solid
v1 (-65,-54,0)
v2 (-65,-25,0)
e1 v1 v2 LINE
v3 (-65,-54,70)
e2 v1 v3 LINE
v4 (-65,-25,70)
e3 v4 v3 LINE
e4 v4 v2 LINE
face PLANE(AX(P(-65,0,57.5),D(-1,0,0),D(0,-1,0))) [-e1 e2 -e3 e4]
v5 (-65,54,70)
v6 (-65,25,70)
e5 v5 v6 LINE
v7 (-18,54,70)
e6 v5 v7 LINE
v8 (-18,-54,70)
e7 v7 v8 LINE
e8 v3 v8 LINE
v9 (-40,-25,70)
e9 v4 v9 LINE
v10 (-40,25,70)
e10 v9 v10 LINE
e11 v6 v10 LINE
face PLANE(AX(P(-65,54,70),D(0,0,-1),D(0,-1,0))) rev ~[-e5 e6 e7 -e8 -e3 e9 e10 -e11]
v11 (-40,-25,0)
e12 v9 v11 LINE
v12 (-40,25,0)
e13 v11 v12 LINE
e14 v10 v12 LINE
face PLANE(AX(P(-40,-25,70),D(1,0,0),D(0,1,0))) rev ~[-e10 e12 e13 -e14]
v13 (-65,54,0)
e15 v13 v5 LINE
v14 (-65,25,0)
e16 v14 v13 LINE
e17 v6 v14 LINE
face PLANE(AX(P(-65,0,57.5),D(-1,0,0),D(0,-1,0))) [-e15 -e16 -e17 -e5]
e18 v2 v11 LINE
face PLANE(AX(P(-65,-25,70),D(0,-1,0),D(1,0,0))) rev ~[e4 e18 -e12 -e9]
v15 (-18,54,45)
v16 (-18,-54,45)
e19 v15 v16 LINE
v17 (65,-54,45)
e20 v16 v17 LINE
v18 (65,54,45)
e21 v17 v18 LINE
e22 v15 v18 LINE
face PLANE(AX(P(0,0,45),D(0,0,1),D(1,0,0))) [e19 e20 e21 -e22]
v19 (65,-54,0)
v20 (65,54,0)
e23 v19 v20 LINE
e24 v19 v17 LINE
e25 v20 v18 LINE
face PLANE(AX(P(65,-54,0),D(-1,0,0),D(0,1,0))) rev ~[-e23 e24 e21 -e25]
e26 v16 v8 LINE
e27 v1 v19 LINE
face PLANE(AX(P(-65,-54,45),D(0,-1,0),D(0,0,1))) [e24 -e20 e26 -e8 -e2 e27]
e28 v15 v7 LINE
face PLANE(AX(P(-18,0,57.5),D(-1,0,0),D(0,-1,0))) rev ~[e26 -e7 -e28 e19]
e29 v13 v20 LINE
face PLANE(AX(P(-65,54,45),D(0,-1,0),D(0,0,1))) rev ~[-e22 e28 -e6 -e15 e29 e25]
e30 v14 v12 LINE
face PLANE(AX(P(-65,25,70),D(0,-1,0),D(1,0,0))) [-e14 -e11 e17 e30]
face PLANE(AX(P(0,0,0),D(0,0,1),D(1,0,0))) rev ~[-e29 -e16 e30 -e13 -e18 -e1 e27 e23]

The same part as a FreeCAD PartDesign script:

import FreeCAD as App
import Part
import Sketcher

V = App.Vector


def add_polygon(sketch, points):
    """Adds a closed chain of lines whose ends are joined by coincident constraints."""
    first, n = sketch.GeometryCount, len(points)
    for a, b in zip(points, points[1:] + points[:1]):
        sketch.addGeometry(Part.LineSegment(App.Vector(*a, 0), App.Vector(*b, 0)), False)
    for i in range(n):
        sketch.addConstraint(Sketcher.Constraint("Coincident", first + i, 2, first + (i + 1) % n, 1))

doc = App.newDocument("Part")
body = doc.addObject("PartDesign::Body", "Body")

sketch1 = body.newObject("Sketcher::SketchObject", "Sketch")
sketch1.AttachmentSupport = (doc.getObject("XY_Plane"), [""])
sketch1.MapMode = "FlatFace"
add_polygon(sketch1, [(-65, 54), (-65, -54), (65, -54), (65, 54)])
sketch1.addConstraint(Sketcher.Constraint("Vertical", 0))
sketch1.addConstraint(Sketcher.Constraint("Horizontal", 1))
sketch1.addConstraint(Sketcher.Constraint("Vertical", 2))
sketch1.addConstraint(Sketcher.Constraint("Horizontal", 3))
sketch1.addConstraint(Sketcher.Constraint("Symmetric", 0, 2, 2, 2, -1, 1))
sketch1.addConstraint(Sketcher.Constraint("DistanceX", 1, 1, 1, 2, 130.0))
sketch1.addConstraint(Sketcher.Constraint("DistanceY", 0, 2, 0, 1, 108.0))
pad1 = body.newObject("PartDesign::Pad", "Pad")
pad1.Profile = sketch1
pad1.Length = 45

sketch2 = body.newObject("Sketcher::SketchObject", "Sketch001")
sketch2.AttachmentSupport = (doc.getObject("YZ_Plane"), [""])
sketch2.MapMode = "FlatFace"
sketch2.AttachmentOffset = App.Placement(V(0, 0, -65), App.Rotation())
add_polygon(sketch2, [(54, 70), (54, 45), (-54, 45), (-54, 70)])
sketch2.addConstraint(Sketcher.Constraint("Vertical", 0))
sketch2.addConstraint(Sketcher.Constraint("Horizontal", 1))
sketch2.addConstraint(Sketcher.Constraint("Vertical", 2))
sketch2.addConstraint(Sketcher.Constraint("Horizontal", 3))
sketch2.addConstraint(Sketcher.Constraint("DistanceX", 1, 2, 1, 1, 108.0))
sketch2.addConstraint(Sketcher.Constraint("DistanceY", 0, 2, 0, 1, 25.0))
sketch2.addConstraint(Sketcher.Constraint("DistanceX", -1, 1, 0, 2, 54.0))
sketch2.addConstraint(Sketcher.Constraint("DistanceY", -1, 1, 0, 2, 45.0))
pad2 = body.newObject("PartDesign::Pad", "Pad001")
pad2.Profile = sketch2
pad2.Length = 47

sketch3 = body.newObject("Sketcher::SketchObject", "Sketch002")
sketch3.AttachmentSupport = (doc.getObject("XY_Plane"), [""])
sketch3.MapMode = "FlatFace"
sketch3.AttachmentOffset = App.Placement(V(0, 0, 70), App.Rotation())
add_polygon(sketch3, [(-65, 25), (-65, -25), (-40, -25), (-40, 25)])
sketch3.addConstraint(Sketcher.Constraint("Vertical", 0))
sketch3.addConstraint(Sketcher.Constraint("Horizontal", 1))
sketch3.addConstraint(Sketcher.Constraint("Vertical", 2))
sketch3.addConstraint(Sketcher.Constraint("Horizontal", 3))
sketch3.addConstraint(Sketcher.Constraint("DistanceX", 1, 1, 1, 2, 25.0))
sketch3.addConstraint(Sketcher.Constraint("DistanceY", 0, 2, 0, 1, 50.0))
sketch3.addConstraint(Sketcher.Constraint("DistanceX", 0, 2, -1, 1, 65.0))
sketch3.addConstraint(Sketcher.Constraint("DistanceY", 0, 2, -1, 1, 25.0))
pocket1 = body.newObject("PartDesign::Pocket", "Pocket")
pocket1.Profile = sketch3
pocket1.Type = "ThroughAll"

doc.recompute()
